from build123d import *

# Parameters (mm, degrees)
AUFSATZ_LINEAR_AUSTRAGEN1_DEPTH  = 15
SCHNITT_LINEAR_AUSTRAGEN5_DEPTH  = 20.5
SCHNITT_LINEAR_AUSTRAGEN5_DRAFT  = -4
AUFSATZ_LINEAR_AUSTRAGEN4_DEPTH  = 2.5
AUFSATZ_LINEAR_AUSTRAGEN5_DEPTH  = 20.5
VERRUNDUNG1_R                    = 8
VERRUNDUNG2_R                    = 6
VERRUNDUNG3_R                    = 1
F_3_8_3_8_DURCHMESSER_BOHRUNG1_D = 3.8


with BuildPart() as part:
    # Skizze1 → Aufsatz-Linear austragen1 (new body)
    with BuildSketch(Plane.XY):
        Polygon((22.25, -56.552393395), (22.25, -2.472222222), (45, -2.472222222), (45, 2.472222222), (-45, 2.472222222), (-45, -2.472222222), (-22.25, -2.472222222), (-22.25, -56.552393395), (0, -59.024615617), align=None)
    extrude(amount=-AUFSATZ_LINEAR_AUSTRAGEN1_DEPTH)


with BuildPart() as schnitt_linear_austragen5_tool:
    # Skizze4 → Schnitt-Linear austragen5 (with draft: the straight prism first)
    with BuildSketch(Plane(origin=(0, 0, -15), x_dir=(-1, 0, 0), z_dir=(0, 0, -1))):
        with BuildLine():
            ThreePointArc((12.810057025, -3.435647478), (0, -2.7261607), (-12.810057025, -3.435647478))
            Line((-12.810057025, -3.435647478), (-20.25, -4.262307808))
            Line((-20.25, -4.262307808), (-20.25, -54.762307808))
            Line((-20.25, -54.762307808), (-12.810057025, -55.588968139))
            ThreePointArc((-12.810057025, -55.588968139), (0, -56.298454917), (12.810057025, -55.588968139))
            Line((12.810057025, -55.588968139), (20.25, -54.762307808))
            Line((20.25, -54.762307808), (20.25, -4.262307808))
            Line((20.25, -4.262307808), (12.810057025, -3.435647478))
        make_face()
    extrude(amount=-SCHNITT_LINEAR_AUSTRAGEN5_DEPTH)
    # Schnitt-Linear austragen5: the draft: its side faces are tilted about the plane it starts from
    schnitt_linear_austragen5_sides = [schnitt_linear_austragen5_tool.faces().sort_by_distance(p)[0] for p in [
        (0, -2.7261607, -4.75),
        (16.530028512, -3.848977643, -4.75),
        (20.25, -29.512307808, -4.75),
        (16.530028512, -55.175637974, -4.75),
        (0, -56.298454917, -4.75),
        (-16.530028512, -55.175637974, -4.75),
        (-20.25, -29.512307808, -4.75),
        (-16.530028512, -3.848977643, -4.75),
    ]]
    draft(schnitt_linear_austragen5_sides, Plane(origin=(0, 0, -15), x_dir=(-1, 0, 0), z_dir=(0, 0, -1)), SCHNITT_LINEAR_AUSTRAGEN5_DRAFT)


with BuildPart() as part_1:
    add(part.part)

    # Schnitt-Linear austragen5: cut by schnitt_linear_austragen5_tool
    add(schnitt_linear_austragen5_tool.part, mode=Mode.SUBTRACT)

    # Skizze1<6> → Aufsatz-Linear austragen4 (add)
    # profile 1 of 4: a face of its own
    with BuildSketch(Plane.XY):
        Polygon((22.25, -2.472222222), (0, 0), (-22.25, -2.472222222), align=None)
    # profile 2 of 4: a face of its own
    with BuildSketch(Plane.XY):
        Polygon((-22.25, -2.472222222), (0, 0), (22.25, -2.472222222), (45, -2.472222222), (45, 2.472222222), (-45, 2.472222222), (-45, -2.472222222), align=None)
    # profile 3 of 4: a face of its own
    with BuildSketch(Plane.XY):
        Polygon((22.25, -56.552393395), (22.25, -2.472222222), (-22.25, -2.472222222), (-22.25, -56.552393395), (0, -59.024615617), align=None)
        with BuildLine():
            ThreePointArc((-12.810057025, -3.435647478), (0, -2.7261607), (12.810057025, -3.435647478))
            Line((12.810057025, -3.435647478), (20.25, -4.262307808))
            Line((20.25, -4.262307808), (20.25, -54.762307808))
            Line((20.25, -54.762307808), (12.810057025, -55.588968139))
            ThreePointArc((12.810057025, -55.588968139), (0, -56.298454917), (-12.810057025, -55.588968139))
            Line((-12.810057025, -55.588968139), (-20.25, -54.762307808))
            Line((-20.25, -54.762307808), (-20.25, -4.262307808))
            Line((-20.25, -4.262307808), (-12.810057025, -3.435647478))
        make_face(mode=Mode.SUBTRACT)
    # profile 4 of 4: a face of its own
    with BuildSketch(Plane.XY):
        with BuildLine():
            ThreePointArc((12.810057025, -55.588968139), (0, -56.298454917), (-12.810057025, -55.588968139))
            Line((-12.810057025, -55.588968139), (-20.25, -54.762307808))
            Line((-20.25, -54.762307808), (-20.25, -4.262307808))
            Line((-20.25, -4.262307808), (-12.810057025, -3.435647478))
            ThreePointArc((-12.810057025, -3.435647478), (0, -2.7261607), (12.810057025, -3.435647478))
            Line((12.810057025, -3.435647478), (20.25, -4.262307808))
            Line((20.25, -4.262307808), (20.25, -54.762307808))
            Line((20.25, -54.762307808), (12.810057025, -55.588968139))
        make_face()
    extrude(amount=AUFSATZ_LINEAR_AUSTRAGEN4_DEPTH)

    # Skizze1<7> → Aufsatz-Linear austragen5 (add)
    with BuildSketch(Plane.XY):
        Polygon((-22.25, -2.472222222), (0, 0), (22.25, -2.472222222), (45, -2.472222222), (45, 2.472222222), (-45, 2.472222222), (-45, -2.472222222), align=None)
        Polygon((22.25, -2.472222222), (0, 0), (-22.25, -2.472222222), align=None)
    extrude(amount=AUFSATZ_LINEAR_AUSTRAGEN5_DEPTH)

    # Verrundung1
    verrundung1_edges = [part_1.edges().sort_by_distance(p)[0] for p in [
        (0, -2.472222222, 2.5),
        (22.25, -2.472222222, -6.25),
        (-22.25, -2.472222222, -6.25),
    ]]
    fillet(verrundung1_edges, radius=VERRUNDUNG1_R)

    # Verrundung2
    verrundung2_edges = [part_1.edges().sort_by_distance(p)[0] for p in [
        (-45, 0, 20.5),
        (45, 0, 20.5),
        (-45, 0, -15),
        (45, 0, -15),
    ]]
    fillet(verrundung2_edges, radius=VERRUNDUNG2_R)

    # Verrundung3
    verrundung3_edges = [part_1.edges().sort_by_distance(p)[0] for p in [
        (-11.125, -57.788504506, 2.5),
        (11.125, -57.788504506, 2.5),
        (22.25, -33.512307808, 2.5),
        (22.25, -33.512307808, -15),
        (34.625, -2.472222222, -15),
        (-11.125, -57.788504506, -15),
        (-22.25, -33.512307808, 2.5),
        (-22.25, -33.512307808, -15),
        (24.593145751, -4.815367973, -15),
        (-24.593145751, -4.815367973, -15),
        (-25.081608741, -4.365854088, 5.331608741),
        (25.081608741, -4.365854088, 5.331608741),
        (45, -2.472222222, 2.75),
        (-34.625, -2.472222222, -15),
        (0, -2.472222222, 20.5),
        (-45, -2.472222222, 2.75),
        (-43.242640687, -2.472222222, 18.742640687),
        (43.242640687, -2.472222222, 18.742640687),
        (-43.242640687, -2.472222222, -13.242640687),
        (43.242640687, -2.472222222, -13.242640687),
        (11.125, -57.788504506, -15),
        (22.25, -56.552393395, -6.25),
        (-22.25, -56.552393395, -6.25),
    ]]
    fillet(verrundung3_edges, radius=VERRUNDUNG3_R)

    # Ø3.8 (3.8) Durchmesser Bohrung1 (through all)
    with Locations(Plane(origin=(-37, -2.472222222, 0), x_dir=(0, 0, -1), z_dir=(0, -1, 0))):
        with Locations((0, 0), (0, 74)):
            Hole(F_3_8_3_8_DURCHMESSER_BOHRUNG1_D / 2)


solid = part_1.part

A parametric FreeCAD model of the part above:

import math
import FreeCAD as App
import Part
import Sketcher

V = App.Vector


def edges_at(feature, points):
    """Names of the edges that pass closest to the given points."""
    edges = feature.Shape.Edges
    near = lambda p: min(range(len(edges)), key=lambda i: edges[i].distToShape(Part.Vertex(*p))[0])
    return sorted({f"Edge{near(p) + 1}" for p in points})


def faces_at(feature, points):
    """Names of the faces that lie closest to the given points."""
    faces = feature.Shape.Faces
    near = lambda p: min(range(len(faces)), key=lambda i: faces[i].distToShape(Part.Vertex(*p))[0])
    return sorted({f"Face{near(p) + 1}" for p in points})


def add_polygon(sketch, points):
    """Adds a closed chain of lines whose ends are joined by coincident constraints."""
    first, n = sketch.GeometryCount, len(points)
    for a, b in zip(points, points[1:] + points[:1]):
        sketch.addGeometry(Part.LineSegment(App.Vector(*a, 0), App.Vector(*b, 0)), False)
    for i in range(n):
        sketch.addConstraint(Sketcher.Constraint("Coincident", first + i, 2, first + (i + 1) % n, 1))

doc = App.newDocument("Part")
body = doc.addObject("PartDesign::Body", "Body")

# Sketch on XY plane
sketch1 = body.newObject("Sketcher::SketchObject", "Sketch")
sketch1.AttachmentSupport = (doc.getObject("XY_Plane"), [""])
sketch1.MapMode = "FlatFace"
add_polygon(sketch1, [(22.2, -56.6), (22.2, -2.5), (45, -2.5), (45, 2.5), (-45, 2.5), (-45, -2.5), (-22.2, -2.5), (-22.2, -56.6), (0, -59)])  # lines 0-8
sketch1.addConstraint([
    Sketcher.Constraint("Vertical", 0),
    Sketcher.Constraint("Horizontal", 1),
    Sketcher.Constraint("Vertical", 2),
    Sketcher.Constraint("Horizontal", 3),
    Sketcher.Constraint("Vertical", 4),
    Sketcher.Constraint("Horizontal", 5),
    Sketcher.Constraint("Vertical", 6),
    Sketcher.Constraint("Symmetric", 1, 2, 3, 2, -1, 1),
    Sketcher.Constraint("Symmetric", 0, 2, 5, 2, -2),
    Sketcher.Constraint("PointOnObject", 7, 2, -2),
    Sketcher.Constraint("Horizontal", 6, 2, 8, 2),
    Sketcher.Constraint("DistanceX", 3, 2, 3, 1, 90.0),
    Sketcher.Constraint("DistanceX", 1, 1, 1, 2, 22.75),
    Sketcher.Constraint("DistanceY", 0, 1, 0, 2, 54.080171),
    Sketcher.Constraint("DistanceY", 2, 1, 2, 2, 4.944444),
    Sketcher.Constraint("Distance", 7, 22.386924),
])
pad1 = body.newObject("PartDesign::Pad", "Pad")
pad1.Profile = sketch1
pad1.Length = 15
pad1.Reversed = True
body2 = doc.addObject("PartDesign::Body", "Body001")

# Sketch on XY plane
sketch2 = body2.newObject("Sketcher::SketchObject", "Sketch001")
sketch2.AttachmentSupport = (doc.getObject("XY_Plane001"), [""])
sketch2.MapMode = "FlatFace"
sketch2.AttachmentOffset = App.Placement(V(0, 0, -15), App.Rotation())
sketch2.addGeometry([
    Part.ArcOfCircle(Part.Circle(V(0, -118.726161, 0), V(0, 0, 1), 116), math.radians(83.659808), math.radians(96.340192)),  # 0
    Part.LineSegment(V(12.810057, -3.435647, 0), V(20.25, -4.262308, 0)),  # 1
    Part.LineSegment(V(20.25, -4.262308, 0), V(20.25, -54.762308, 0)),  # 2
    Part.LineSegment(V(20.25, -54.762308, 0), V(12.810057, -55.588968, 0)),  # 3
    Part.ArcOfCircle(Part.Circle(V(0, 59.701545, 0), V(0, 0, 1), 116), math.radians(-96.340192), math.radians(-83.659808)),  # 4
    Part.LineSegment(V(-12.810057, -55.588968, 0), V(-20.25, -54.762308, 0)),  # 5
    Part.LineSegment(V(-20.25, -54.762308, 0), V(-20.25, -4.262308, 0)),  # 6
    Part.LineSegment(V(-20.25, -4.262308, 0), V(-12.810057, -3.435647, 0)),  # 7
], False)
sketch2.addConstraint([
    Sketcher.Constraint("Coincident", 0, 1, 1, 1),
    Sketcher.Constraint("Coincident", 1, 2, 2, 1),
    Sketcher.Constraint("Coincident", 2, 2, 3, 1),
    Sketcher.Constraint("Coincident", 3, 2, 4, 2),
    Sketcher.Constraint("Coincident", 4, 1, 5, 1),
    Sketcher.Constraint("Coincident", 5, 2, 6, 1),
    Sketcher.Constraint("Coincident", 6, 2, 7, 1),
    Sketcher.Constraint("Coincident", 7, 2, 0, 2),
    Sketcher.Constraint("Vertical", 2),
    Sketcher.Constraint("Vertical", 6),
    Sketcher.Constraint("PointOnObject", 0, 3, -2),
    Sketcher.Constraint("PointOnObject", 4, 3, -2),
    Sketcher.Constraint("Radius", 0, 116.0),
    Sketcher.Constraint("Radius", 4, 116.0),
    Sketcher.Constraint("DistanceY", 2, 2, 2, 1, 50.5),
    Sketcher.Constraint("DistanceY", 6, 1, 6, 2, 50.5),
    Sketcher.Constraint("DistanceX", 5, 2, 2, 2, 40.5),
    Sketcher.Constraint("DistanceY", 5, 2, 1, 2, 50.5),
    Sketcher.Constraint("DistanceX", -1, 1, 1, 2, 20.25),
    Sketcher.Constraint("DistanceY", 0, 3, -1, 1, 118.726161),
    Sketcher.Constraint("DistanceY", 3, 2, -1, 1, 55.588968),
    Sketcher.Constraint("DistanceY", 4, 1, -1, 1, 55.588968),
    Sketcher.Constraint("DistanceY", 1, 2, 0, 1, 0.82666),
    Sketcher.Constraint("DistanceY", 3, 2, 2, 2, 0.82666),
    Sketcher.Constraint("DistanceY", 6, 2, 7, 2, 0.82666),
    Sketcher.Constraint("Distance", 3, 7.485728),
])
pad2 = body2.newObject("PartDesign::Pad", "Pad001")
pad2.Profile = sketch2
pad2.Length = 20.5
doc.recompute()

datumplane = body2.newObject("PartDesign::Plane", "DatumPlane")
datumplane.AttachmentSupport = (doc.getObject("XY_Plane001"), [""])
datumplane.MapMode = "FlatFace"
datumplane.AttachmentOffset = App.Placement(V(0, 0, -15), App.Rotation())
draft = body2.newObject("PartDesign::Draft", "Draft")
draft.Base = (pad2, faces_at(pad2, [
    (0, -2.726, -4.75),
    (16.53, -3.849, -4.75),
    (20.25, -29.512, -4.75),
    (16.53, -55.176, -4.75),
    (0, -56.298, -4.75),
    (-16.53, -55.176, -4.75),
    (-20.25, -29.512, -4.75),
    (-16.53, -3.849, -4.75),
]))
draft.NeutralPlane = (datumplane, [""])
draft.Angle = 4
draft.Reversed = False
doc.recompute()

boolean = body.newObject("PartDesign::Boolean", "Boolean")
boolean.Type = "Cut"
boolean.addObjects([body2])

# Sketch on XY plane
sketch3 = body.newObject("Sketcher::SketchObject", "Sketch002")
sketch3.AttachmentSupport = (doc.getObject("XY_Plane"), [""])
sketch3.MapMode = "FlatFace"
add_polygon(sketch3, [(-45, 2.5), (-45, -2.5), (-22.2, -2.5), (-22.2, -56.6), (0, -59), (22.2, -56.6), (22.2, -2.5), (45, -2.5), (45, 2.5)])  # lines 0-8
sketch3.addConstraint([
    Sketcher.Constraint("Vertical", 0),
    Sketcher.Constraint("Horizontal", 1),
    Sketcher.Constraint("Vertical", 2),
    Sketcher.Constraint("Vertical", 5),
    Sketcher.Constraint("Horizontal", 6),
    Sketcher.Constraint("Vertical", 7),
    Sketcher.Constraint("Horizontal", 8),
    Sketcher.Constraint("Symmetric", 0, 2, 7, 2, -1, 1),
    Sketcher.Constraint("Symmetric", 2, 2, 4, 2, -2),
    Sketcher.Constraint("PointOnObject", 3, 2, -2),
    Sketcher.Constraint("Horizontal", 1, 2, 5, 2),
    Sketcher.Constraint("DistanceX", 8, 2, 8, 1, 90.0),
    Sketcher.Constraint("DistanceX", 1, 1, 1, 2, 22.75),
    Sketcher.Constraint("DistanceY", 2, 2, 2, 1, 54.080171),
    Sketcher.Constraint("DistanceY", 0, 2, 0, 1, 4.944444),
    Sketcher.Constraint("Distance", 3, 22.386924),
])
pad3 = body.newObject("PartDesign::Pad", "Pad002")
pad3.Profile = sketch3
pad3.Length = 2.5

# Sketch on XY plane
sketch4 = body.newObject("Sketcher::SketchObject", "Sketch003")
sketch4.AttachmentSupport = (doc.getObject("XY_Plane"), [""])
sketch4.MapMode = "FlatFace"
add_polygon(sketch4, [(45, -2.5), (45, 2.5), (-45, 2.5), (-45, -2.5)])  # lines 0-3
sketch4.addConstraint([
    Sketcher.Constraint("Vertical", 0),
    Sketcher.Constraint("Horizontal", 1),
    Sketcher.Constraint("Vertical", 2),
    Sketcher.Constraint("Horizontal", 3),
    Sketcher.Constraint("Symmetric", 0, 2, 2, 2, -1, 1),
    Sketcher.Constraint("DistanceX", 1, 2, 1, 1, 90.0),
    Sketcher.Constraint("DistanceY", 0, 1, 0, 2, 4.944444),
])
pad4 = body.newObject("PartDesign::Pad", "Pad003")
pad4.Profile = sketch4
pad4.Length = 20.5
doc.recompute()

fillet = body.newObject("PartDesign::Fillet", "Fillet")
fillet.Base = (pad4, edges_at(pad4, [(0, -2.472, 2.5), (22.25, -2.472, -6.25), (-22.25, -2.472, -6.25)]))
fillet.Radius = 8
doc.recompute()

fillet2 = body.newObject("PartDesign::Fillet", "Fillet001")
fillet2.Base = (fillet, edges_at(fillet, [
    (-45, 0, 20.5),
    (45, 0, 20.5),
    (-45, 0, -15),
    (45, 0, -15),
]))
fillet2.Radius = 6
doc.recompute()

fillet3 = body.newObject("PartDesign::Fillet", "Fillet002")
fillet3.Base = (fillet2, edges_at(fillet2, [
    (-11.125, -57.789, 2.5),
    (11.125, -57.789, 2.5),
    (22.25, -33.512, 2.5),
    (22.25, -33.512, -15),
    (34.625, -2.472, -15),
    (-11.125, -57.789, -15),
    (-22.25, -33.512, 2.5),
    (-22.25, -33.512, -15),
    (24.593, -4.815, -15),
    (-24.593, -4.815, -15),
    (-25.082, -4.366, 5.332),
    (25.082, -4.366, 5.332),
    (45, -2.472, 2.75),
    (-34.625, -2.472, -15),
    (0, -2.472, 20.5),
    (-45, -2.472, 2.75),
    (-43.243, -2.472, 18.743),
    (43.243, -2.472, 18.743),
    (-43.243, -2.472, -13.243),
    (43.243, -2.472, -13.243),
    (11.125, -57.789, -15),
    (22.25, -56.552, -6.25),
    (-22.25, -56.552, -6.25),
]))
fillet3.Radius = 1

# Sketch on XZ plane
sketch5 = body.newObject("Sketcher::SketchObject", "Sketch004")
sketch5.AttachmentSupport = (doc.getObject("XZ_Plane"), [""])
sketch5.MapMode = "FlatFace"
sketch5.AttachmentOffset = App.Placement(V(0, 0, 2.472222), App.Rotation())
sketch5.addGeometry([
    Part.Circle(V(-37, 0, 0), V(0, 0, 1), 1.9),
    Part.Circle(V(37, 0, 0), V(0, 0, 1), 1.9),
], False)
sketch5.addConstraint([
    Sketcher.Constraint("Equal", 0, 1),
    Sketcher.Constraint("Symmetric", 0, 3, 1, 3, -1, 1),
    Sketcher.Constraint("PointOnObject", 0, 3, -1),
    Sketcher.Constraint("Diameter", 0, 3.8),
    Sketcher.Constraint("DistanceX", 0, 3, -1, 1, 37.0),
])
doc.recompute()
hole = body.newObject("PartDesign::Hole", "Hole")
hole.Profile = sketch5
hole.ThreadType = "None"
hole.Diameter = 3.8
hole.DepthType = "ThroughAll"

doc.recompute()
